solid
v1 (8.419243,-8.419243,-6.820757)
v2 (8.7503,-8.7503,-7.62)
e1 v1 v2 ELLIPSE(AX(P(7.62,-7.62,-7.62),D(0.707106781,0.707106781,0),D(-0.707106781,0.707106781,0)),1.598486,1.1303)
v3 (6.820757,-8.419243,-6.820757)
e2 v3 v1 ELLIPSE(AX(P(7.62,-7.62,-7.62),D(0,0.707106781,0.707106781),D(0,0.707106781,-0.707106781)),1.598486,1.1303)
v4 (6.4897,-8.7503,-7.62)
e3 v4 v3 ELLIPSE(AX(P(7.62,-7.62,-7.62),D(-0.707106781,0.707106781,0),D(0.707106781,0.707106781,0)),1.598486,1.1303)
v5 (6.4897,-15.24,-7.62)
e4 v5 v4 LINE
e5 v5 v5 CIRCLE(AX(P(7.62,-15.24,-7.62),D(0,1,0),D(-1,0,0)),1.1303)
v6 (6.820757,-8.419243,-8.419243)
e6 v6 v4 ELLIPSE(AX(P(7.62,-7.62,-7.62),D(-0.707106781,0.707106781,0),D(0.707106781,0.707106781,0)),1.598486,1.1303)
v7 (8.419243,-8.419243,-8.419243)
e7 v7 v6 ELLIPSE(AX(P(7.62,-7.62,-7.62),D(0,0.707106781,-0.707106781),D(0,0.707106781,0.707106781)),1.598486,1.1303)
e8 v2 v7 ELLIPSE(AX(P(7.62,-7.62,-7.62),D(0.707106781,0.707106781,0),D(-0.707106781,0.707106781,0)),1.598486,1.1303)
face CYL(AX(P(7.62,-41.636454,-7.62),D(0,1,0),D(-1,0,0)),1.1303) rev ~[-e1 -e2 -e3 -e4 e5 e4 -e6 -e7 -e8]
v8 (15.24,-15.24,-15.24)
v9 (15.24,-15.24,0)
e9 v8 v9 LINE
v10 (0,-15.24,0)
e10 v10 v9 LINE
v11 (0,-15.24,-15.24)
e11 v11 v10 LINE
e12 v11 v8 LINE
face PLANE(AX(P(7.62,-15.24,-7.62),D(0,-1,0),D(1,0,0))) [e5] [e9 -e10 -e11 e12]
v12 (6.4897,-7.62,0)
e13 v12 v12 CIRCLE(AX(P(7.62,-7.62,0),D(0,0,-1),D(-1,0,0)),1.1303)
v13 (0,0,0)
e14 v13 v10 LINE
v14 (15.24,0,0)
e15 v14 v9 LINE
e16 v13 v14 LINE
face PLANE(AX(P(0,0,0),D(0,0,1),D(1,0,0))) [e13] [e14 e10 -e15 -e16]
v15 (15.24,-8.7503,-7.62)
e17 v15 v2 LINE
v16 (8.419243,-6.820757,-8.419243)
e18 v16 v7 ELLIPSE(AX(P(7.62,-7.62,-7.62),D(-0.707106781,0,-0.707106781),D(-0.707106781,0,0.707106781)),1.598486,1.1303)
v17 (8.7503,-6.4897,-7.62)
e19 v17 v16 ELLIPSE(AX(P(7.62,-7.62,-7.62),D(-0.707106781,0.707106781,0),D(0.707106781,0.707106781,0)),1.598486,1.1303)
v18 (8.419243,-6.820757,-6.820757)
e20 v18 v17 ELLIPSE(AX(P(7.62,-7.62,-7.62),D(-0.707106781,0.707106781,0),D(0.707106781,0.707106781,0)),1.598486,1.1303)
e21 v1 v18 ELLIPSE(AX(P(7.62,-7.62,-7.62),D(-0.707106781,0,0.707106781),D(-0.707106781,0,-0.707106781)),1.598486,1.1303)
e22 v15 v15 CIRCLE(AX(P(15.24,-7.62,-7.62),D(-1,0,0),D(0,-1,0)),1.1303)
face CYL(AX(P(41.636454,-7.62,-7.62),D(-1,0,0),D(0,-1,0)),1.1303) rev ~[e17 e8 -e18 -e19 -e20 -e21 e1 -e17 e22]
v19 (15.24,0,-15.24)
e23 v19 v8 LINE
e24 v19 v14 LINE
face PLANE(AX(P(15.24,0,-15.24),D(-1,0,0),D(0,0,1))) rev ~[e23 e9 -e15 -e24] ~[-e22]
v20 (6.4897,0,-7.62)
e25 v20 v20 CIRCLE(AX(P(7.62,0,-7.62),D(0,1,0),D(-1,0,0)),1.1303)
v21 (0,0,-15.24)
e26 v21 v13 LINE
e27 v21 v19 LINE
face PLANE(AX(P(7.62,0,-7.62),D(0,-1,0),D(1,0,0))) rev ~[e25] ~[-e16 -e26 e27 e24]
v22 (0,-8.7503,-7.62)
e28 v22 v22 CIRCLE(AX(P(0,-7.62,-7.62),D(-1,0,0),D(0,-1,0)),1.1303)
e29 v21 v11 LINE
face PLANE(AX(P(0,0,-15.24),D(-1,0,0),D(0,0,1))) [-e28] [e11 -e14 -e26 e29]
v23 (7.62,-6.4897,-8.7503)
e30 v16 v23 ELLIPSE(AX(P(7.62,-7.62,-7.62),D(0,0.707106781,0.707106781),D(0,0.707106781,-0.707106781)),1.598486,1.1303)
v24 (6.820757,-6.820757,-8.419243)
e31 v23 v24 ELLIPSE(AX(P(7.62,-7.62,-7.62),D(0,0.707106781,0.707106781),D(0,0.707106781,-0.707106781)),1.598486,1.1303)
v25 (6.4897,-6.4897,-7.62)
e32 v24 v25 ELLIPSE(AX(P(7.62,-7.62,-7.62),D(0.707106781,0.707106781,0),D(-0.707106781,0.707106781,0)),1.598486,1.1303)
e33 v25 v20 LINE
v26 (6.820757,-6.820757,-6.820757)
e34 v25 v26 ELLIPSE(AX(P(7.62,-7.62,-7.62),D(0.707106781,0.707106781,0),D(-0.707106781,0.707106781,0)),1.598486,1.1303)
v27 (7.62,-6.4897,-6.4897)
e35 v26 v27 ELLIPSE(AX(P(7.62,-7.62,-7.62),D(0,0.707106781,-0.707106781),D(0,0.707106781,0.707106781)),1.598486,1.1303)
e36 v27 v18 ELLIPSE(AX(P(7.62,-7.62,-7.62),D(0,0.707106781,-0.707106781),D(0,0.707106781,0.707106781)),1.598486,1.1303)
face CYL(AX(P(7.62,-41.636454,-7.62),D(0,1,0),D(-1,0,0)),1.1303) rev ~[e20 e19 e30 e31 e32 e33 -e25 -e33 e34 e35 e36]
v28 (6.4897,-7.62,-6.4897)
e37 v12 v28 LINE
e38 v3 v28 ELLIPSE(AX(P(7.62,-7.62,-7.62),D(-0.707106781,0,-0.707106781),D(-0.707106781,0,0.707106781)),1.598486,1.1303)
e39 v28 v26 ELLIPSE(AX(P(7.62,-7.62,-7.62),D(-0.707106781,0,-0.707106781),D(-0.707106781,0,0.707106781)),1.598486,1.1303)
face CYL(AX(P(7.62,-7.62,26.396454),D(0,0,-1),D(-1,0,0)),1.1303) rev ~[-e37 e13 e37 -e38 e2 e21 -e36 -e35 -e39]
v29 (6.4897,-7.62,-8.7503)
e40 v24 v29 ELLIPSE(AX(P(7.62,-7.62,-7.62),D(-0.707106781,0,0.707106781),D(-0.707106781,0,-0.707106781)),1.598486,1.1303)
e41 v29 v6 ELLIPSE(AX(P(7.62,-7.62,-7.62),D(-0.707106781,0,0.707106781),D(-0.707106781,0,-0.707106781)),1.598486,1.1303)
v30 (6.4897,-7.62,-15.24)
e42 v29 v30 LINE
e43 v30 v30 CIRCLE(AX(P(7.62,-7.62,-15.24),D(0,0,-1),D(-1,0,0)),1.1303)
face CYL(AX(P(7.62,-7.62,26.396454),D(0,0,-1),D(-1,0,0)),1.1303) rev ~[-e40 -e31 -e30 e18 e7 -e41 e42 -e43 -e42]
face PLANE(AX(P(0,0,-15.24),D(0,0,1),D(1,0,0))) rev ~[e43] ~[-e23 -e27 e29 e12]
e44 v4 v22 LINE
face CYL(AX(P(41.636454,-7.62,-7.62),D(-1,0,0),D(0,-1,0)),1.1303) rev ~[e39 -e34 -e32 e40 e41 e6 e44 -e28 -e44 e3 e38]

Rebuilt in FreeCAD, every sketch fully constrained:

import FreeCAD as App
import Part
import Sketcher
from FreeCAD import Vector
Q = App.Units.Quantity

doc = App.newDocument("Part")
params = doc.addObject("Spreadsheet::Sheet", "Params")
for row, (alias, value) in enumerate([
    ("sketch1_width", "0.6 in"),
    ("pad1_length", "0.6 in"),
    ("sketch2_diameter", "0.089 in"),
    ("hole_diameter", "0.089 in"),
    ("sketch3_diameter", "0.089 in"),
    ("hole2_diameter", "0.089 in"),
    ("sketch4_diameter", "0.089 in"),
    ("hole3_diameter", "0.089 in"),
], start=1):
    params.set(f"A{row}", alias)
    params.set(f"B{row}", "=" + value)
    params.setAlias(f"B{row}", alias)

body = doc.addObject("PartDesign::Body", "Body")

# Sketch on XZ plane
sketch1 = doc.addObject("Sketcher::SketchObject", "Sketch")
body.addObject(sketch1)
sketch1.AttachmentSupport = (doc.XZ_Plane, [""])
sketch1.MapMode = "FlatFace"
sketch1.addGeometry([
    Part.LineSegment(Vector(0, 0, 0), Vector(0, -15, 0)),
    Part.LineSegment(Vector(0, -15, 0), Vector(15, -15, 0)),
    Part.LineSegment(Vector(15, -15, 0), Vector(15, 0, 0)),
    Part.LineSegment(Vector(15, 0, 0), Vector(0, 0, 0)),
], False)
sketch1.addConstraint([
    Sketcher.Constraint("Coincident", 0, 2, 1, 1),
    Sketcher.Constraint("Coincident", 1, 2, 2, 1),
    Sketcher.Constraint("Coincident", 2, 2, 3, 1),
    Sketcher.Constraint("Coincident", 3, 2, 0, 1),
    Sketcher.Constraint("Vertical", 0),
    Sketcher.Constraint("Horizontal", 1),
    Sketcher.Constraint("Vertical", 2),
    Sketcher.Constraint("Horizontal", 3),
    Sketcher.Constraint("Coincident", 3, 2, -1, 1),
    Sketcher.Constraint("Equal", 3, 0),
    Sketcher.Constraint("DistanceX", 1, 1, 1, 2, Q("0.6 in")),
])
sketch1.setExpression("Constraints[10]", "Params.sketch1_width")
pad1 = doc.addObject("PartDesign::Pad", "Pad")
body.addObject(pad1)
pad1.Profile = sketch1
pad1.setExpression("Length", "Params.pad1_length")

# Sketch on XZ plane
sketch2 = doc.addObject("Sketcher::SketchObject", "Sketch001")
body.addObject(sketch2)
sketch2.AttachmentSupport = (doc.XZ_Plane, [""])
sketch2.MapMode = "FlatFace"
sketch2.AttachmentOffset = App.Placement(Vector(0, 0, 0.6 * 25.4), App.Rotation())
sketch2.addGeometry(Part.Circle(Vector(7.6, -7.6, 0), Vector(0, 0, 1), 1.1), False)
sketch2.addConstraint([
    Sketcher.Constraint("Diameter", 0, Q("0.089 in")),
    Sketcher.Constraint("DistanceX", -1, 1, 0, 3, Q("0.3 in")),
    Sketcher.Constraint("DistanceY", 0, 3, -1, 1, Q("0.3 in")),
])
sketch2.setExpression("Constraints[0]", "Params.sketch2_diameter")
doc.recompute()
hole = doc.addObject("PartDesign::Hole", "Hole")
body.addObject(hole)
hole.Profile = sketch2
hole.ThreadType = "None"
hole.setExpression("Diameter", "Params.hole_diameter")
hole.DepthType = "ThroughAll"

# Sketch on YZ plane
sketch3 = doc.addObject("Sketcher::SketchObject", "Sketch002")
body.addObject(sketch3)
sketch3.AttachmentSupport = (doc.YZ_Plane, [""])
sketch3.MapMode = "FlatFace"
sketch3.AttachmentOffset = App.Placement(Vector(0, 0, 0.6 * 25.4), App.Rotation())
sketch3.addGeometry(Part.Circle(Vector(-7.6, -7.6, 0), Vector(0, 0, 1), 1.1), False)
sketch3.addConstraint([
    Sketcher.Constraint("Diameter", 0, Q("0.089 in")),
    Sketcher.Constraint("DistanceX", 0, 3, -1, 1, Q("0.3 in")),
    Sketcher.Constraint("DistanceY", 0, 3, -1, 1, Q("0.3 in")),
])
sketch3.setExpression("Constraints[0]", "Params.sketch3_diameter")
doc.recompute()
hole2 = doc.addObject("PartDesign::Hole", "Hole001")
body.addObject(hole2)
hole2.Profile = sketch3
hole2.ThreadType = "None"
hole2.setExpression("Diameter", "Params.hole2_diameter")
hole2.DepthType = "ThroughAll"

# Sketch on XY plane
sketch4 = doc.addObject("Sketcher::SketchObject", "Sketch003")
body.addObject(sketch4)
sketch4.AttachmentSupport = (doc.XY_Plane, [""])
sketch4.MapMode = "FlatFace"
sketch4.addGeometry(Part.Circle(Vector(7.6, -7.6, 0), Vector(0, 0, 1), 1.1), False)
sketch4.addConstraint([
    Sketcher.Constraint("Diameter", 0, Q("0.089 in")),
    Sketcher.Constraint("DistanceX", -1, 1, 0, 3, Q("0.3 in")),
    Sketcher.Constraint("DistanceY", 0, 3, -1, 1, Q("0.3 in")),
])
sketch4.setExpression("Constraints[0]", "Params.sketch4_diameter")
doc.recompute()
hole3 = doc.addObject("PartDesign::Hole", "Hole002")
body.addObject(hole3)
hole3.Profile = sketch4
hole3.ThreadType = "None"
hole3.setExpression("Diameter", "Params.hole3_diameter")
hole3.DepthType = "ThroughAll"

doc.recompute()
